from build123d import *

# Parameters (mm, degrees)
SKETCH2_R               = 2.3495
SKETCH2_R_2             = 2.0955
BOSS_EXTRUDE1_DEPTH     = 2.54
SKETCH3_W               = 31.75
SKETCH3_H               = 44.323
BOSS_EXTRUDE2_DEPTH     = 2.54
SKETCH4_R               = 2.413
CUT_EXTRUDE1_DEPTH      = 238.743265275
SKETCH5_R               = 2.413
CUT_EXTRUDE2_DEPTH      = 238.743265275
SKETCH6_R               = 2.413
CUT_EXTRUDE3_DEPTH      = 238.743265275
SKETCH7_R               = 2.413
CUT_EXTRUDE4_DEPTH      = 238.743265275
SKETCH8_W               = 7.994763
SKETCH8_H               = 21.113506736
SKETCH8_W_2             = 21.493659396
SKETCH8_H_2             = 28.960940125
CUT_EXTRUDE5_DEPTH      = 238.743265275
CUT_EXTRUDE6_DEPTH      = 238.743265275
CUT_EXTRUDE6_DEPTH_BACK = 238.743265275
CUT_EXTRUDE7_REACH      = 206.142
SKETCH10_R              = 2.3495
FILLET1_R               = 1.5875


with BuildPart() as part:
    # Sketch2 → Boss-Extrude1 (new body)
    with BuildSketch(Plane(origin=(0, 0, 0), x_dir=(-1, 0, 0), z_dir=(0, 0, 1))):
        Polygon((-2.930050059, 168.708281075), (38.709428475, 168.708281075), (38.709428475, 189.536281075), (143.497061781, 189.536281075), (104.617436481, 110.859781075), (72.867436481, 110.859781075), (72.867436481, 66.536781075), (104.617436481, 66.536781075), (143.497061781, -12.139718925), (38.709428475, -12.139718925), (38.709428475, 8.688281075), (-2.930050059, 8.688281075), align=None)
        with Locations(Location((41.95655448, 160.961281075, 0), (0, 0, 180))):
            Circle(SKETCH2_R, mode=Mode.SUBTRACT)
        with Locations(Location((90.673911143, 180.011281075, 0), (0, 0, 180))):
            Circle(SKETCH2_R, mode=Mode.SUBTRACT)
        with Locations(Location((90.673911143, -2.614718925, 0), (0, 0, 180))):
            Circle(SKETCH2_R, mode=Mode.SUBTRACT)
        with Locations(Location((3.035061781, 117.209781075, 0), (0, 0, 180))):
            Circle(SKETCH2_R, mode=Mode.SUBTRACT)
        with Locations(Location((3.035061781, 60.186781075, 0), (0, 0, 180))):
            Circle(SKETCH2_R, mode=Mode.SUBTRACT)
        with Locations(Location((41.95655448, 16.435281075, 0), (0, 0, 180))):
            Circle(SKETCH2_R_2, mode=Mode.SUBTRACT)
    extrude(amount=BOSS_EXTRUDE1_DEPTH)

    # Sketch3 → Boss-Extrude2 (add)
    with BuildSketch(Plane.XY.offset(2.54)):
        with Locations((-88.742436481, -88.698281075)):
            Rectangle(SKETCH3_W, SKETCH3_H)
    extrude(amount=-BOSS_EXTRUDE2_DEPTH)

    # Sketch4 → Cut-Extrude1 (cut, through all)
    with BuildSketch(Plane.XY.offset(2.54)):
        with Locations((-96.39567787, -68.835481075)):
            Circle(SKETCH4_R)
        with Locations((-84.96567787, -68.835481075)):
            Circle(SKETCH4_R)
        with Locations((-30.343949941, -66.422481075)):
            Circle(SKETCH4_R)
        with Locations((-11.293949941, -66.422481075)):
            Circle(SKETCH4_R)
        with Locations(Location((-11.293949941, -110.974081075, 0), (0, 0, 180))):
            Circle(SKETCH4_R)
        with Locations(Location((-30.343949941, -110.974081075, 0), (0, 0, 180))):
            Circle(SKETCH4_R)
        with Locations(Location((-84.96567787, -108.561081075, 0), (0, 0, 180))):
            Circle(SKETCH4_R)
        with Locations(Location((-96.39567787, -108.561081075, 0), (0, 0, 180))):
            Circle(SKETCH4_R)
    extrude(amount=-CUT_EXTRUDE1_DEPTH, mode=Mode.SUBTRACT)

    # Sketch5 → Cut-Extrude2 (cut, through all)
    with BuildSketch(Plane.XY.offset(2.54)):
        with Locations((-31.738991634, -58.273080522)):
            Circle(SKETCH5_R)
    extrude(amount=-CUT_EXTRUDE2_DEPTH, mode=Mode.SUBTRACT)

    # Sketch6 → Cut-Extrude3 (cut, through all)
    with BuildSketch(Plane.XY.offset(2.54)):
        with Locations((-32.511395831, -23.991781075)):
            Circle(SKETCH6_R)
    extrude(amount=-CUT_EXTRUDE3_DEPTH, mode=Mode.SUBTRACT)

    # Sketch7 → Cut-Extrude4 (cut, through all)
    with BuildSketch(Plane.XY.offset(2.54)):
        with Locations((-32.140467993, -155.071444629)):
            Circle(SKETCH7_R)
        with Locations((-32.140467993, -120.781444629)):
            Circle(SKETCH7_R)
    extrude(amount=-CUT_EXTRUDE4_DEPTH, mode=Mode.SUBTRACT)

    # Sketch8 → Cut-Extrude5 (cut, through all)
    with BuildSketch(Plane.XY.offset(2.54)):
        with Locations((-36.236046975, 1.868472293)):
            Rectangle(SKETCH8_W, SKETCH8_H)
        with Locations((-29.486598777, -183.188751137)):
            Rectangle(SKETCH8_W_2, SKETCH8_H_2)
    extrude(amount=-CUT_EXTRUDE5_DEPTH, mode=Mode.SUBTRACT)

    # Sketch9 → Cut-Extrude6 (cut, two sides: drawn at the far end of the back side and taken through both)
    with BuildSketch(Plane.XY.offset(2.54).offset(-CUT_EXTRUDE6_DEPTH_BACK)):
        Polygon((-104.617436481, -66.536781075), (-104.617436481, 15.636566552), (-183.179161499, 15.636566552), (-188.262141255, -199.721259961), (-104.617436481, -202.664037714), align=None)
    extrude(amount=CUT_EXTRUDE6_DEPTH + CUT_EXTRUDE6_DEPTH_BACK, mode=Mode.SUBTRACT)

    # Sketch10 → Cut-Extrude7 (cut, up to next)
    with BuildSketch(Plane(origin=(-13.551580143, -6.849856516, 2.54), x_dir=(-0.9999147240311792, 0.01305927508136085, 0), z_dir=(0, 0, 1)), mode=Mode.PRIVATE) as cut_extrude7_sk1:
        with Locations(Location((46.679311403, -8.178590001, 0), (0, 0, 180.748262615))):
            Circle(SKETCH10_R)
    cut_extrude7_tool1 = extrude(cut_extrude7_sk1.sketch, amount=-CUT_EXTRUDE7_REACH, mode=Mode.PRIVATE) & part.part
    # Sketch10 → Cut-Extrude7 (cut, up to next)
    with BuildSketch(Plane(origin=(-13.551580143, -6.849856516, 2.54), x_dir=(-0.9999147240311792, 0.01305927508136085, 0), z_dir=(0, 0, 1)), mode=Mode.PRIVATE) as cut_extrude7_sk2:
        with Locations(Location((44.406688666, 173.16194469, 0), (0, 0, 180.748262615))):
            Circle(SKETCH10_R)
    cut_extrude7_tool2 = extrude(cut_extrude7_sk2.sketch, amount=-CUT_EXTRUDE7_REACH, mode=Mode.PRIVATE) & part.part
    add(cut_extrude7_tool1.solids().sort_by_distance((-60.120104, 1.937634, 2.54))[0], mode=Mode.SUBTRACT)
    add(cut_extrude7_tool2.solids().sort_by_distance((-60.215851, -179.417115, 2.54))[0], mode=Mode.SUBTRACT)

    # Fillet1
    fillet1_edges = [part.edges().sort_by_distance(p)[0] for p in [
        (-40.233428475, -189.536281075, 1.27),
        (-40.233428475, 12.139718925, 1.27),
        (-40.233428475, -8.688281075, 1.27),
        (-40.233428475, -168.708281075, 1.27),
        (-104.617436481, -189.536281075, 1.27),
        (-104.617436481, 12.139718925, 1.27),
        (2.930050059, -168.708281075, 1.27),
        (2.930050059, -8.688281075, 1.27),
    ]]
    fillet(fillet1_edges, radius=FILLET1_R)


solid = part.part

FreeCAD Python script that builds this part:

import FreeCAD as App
import Part
import Sketcher
Q = App.Units.Quantity


def edges_at(feature, points):
    """Names of the edges that pass closest to the given points."""
    edges = feature.Shape.Edges
    near = lambda p: min(range(len(edges)), key=lambda i: edges[i].distToShape(Part.Vertex(*p))[0])
    return sorted({f"Edge{near(p) + 1}" for p in points})


def add_polygon(sketch, points):
    """Adds a closed chain of lines whose ends are joined by coincident constraints."""
    first, n = sketch.GeometryCount, len(points)
    for a, b in zip(points, points[1:] + points[:1]):
        sketch.addGeometry(Part.LineSegment(App.Vector(*a, 0), App.Vector(*b, 0)), False)
    for i in range(n):
        sketch.addConstraint(Sketcher.Constraint("Coincident", first + i, 2, first + (i + 1) % n, 1))

doc = App.newDocument("Part")
body = doc.addObject("PartDesign::Body", "Body")

sketch1 = body.newObject("Sketcher::SketchObject", "Sketch")
sketch1.AttachmentSupport = (doc.getObject("XY_Plane"), [""])
sketch1.MapMode = "FlatFace"
add_polygon(sketch1, [(-38.7, -168.7), (2.9, -168.7), (2.9, -8.7), (-38.7, -8.7), (-38.7, 12.1), (-143.5, 12.1), (-104.6, -66.5), (-72.9, -66.5), (-72.9, -110.9), (-104.6, -110.9), (-143.5, -189.5), (-38.7, -189.5)])
sketch1.addGeometry(Part.Circle(App.Vector(-90.7, 2.6, 0), App.Vector(0, 0, 1), 2.3), False)
sketch1.addGeometry(Part.Circle(App.Vector(-42, -16.4, 0), App.Vector(0, 0, 1), 2.1), False)
sketch1.addGeometry(Part.Circle(App.Vector(-3, -60.2, 0), App.Vector(0, 0, 1), 2.3), False)
sketch1.addGeometry(Part.Circle(App.Vector(-90.7, -180, 0), App.Vector(0, 0, 1), 2.3), False)
sketch1.addGeometry(Part.Circle(App.Vector(-3, -117.2, 0), App.Vector(0, 0, 1), 2.3), False)
sketch1.addGeometry(Part.Circle(App.Vector(-42, -161, 0), App.Vector(0, 0, 1), 2.3), False)
sketch1.addConstraint([
    Sketcher.Constraint("Horizontal", 0),
    Sketcher.Constraint("Vertical", 1),
    Sketcher.Constraint("Horizontal", 2),
    Sketcher.Constraint("Vertical", 3),
    Sketcher.Constraint("Horizontal", 4),
    Sketcher.Constraint("Horizontal", 6),
    Sketcher.Constraint("Vertical", 7),
    Sketcher.Constraint("Horizontal", 8),
    Sketcher.Constraint("Horizontal", 10),
    Sketcher.Constraint("Vertical", 11),
    Sketcher.Constraint("Equal", 12, 14),
    Sketcher.Constraint("Equal", 14, 15),
    Sketcher.Constraint("Equal", 15, 16),
    Sketcher.Constraint("Equal", 16, 17),
    Sketcher.Constraint("Vertical", 12, 3, 15, 3),
    Sketcher.Constraint("Vertical", 14, 3, 16, 3),
    Sketcher.Constraint("Vertical", 13, 3, 17, 3),
    Sketcher.Constraint("Vertical", 5, 2, 8, 2),
    Sketcher.Constraint("Vertical", 4, 2, 9, 2),
    Sketcher.Constraint("Vertical", 3, 2, 10, 2),
    Sketcher.Constraint("Equal", 3, 11),
    Sketcher.Constraint("Equal", 5, 9),
    Sketcher.Constraint("Diameter", 12, Q("0.185 in")),
    Sketcher.Constraint("Diameter", 13, Q("0.165 in")),
    Sketcher.Constraint("DistanceY", 1, 1, 1, 2, Q("6.3 in")),
    Sketcher.Constraint("DistanceX", 6, 1, 6, 2, Q("1.25 in")),
    Sketcher.Constraint("DistanceY", 3, 1, 3, 2, Q("0.82 in")),
    Sketcher.Constraint("DistanceY", 7, 2, 7, 1, Q("1.745 in")),
    Sketcher.Constraint("DistanceY", 13, 3, 12, 3, Q("0.75 in")),
    Sketcher.Constraint("DistanceY", 15, 3, 13, 3, Q("6.44 in")),
    Sketcher.Constraint("DistanceY", 15, 3, 17, 3, Q("0.75 in")),
    Sketcher.Constraint("DistanceY", 5, 2, 14, 3, Q("0.25 in")),
    Sketcher.Constraint("DistanceY", 16, 3, 7, 2, Q("0.25 in")),
    Sketcher.Constraint("DistanceY", 0, 2, 17, 3, Q("0.305 in")),
    Sketcher.Constraint("DistanceX", 0, 1, 0, 2, 41.639479),
    Sketcher.Constraint("DistanceX", 4, 2, 4, 1, 104.787633),
    Sketcher.Constraint("DistanceX", 12, 3, -1, 1, 90.673911),
    Sketcher.Constraint("DistanceY", -1, 1, 12, 3, 2.614719),
    Sketcher.Constraint("DistanceX", 14, 3, -1, 1, 3.035062),
    Sketcher.Constraint("DistanceX", -1, 1, 0, 2, 2.93005),
    Sketcher.Constraint("DistanceX", 5, 2, 2, 2, 65.908008),
    Sketcher.Constraint("DistanceX", 13, 3, -1, 1, 41.956554),
])
pad1 = body.newObject("PartDesign::Pad", "Pad")
pad1.Profile = sketch1
pad1.Length = Q("0.1 in")

sketch2 = body.newObject("Sketcher::SketchObject", "Sketch001")
sketch2.AttachmentSupport = (doc.getObject("XY_Plane"), [""])
sketch2.MapMode = "FlatFace"
sketch2.AttachmentOffset = App.Placement(App.Vector(0, 0, 0.1 * 25.4), App.Rotation())
add_polygon(sketch2, [(-105, -67), (-105, -111), (-73, -111), (-73, -67)])
sketch2.addConstraint([
    Sketcher.Constraint("Vertical", 0),
    Sketcher.Constraint("Horizontal", 1),
    Sketcher.Constraint("Vertical", 2),
    Sketcher.Constraint("Horizontal", 3),
    Sketcher.Constraint("DistanceX", 1, 1, 1, 2, Q("1.25 in")),
    Sketcher.Constraint("DistanceY", 0, 2, 0, 1, Q("1.745 in")),
    Sketcher.Constraint("DistanceY", 0, 2, -1, 1, 110.859781),
    Sketcher.Constraint("DistanceX", 0, 2, -1, 1, 104.617436),
])
pad2 = body.newObject("PartDesign::Pad", "Pad001")
pad2.Profile = sketch2
pad2.Length = Q("0.1 in")
pad2.Reversed = True

sketch3 = body.newObject("Sketcher::SketchObject", "Sketch002")
sketch3.AttachmentSupport = (doc.getObject("XY_Plane"), [""])
sketch3.MapMode = "FlatFace"
sketch3.AttachmentOffset = App.Placement(App.Vector(0, 0, 0.1 * 25.4), App.Rotation())
sketch3.addGeometry([
    Part.Circle(App.Vector(-96.4, -68.8, 0), App.Vector(0, 0, 1), 2.4),
    Part.Circle(App.Vector(-85, -68.8, 0), App.Vector(0, 0, 1), 2.4),
    Part.Circle(App.Vector(-30.3, -66.4, 0), App.Vector(0, 0, 1), 2.4),
    Part.Circle(App.Vector(-11.3, -66.4, 0), App.Vector(0, 0, 1), 2.4),
    Part.Circle(App.Vector(-11.3, -111, 0), App.Vector(0, 0, 1), 2.4),
    Part.Circle(App.Vector(-30.3, -111, 0), App.Vector(0, 0, 1), 2.4),
    Part.Circle(App.Vector(-85, -108.6, 0), App.Vector(0, 0, 1), 2.4),
    Part.Circle(App.Vector(-96.4, -108.6, 0), App.Vector(0, 0, 1), 2.4),
], False)
sketch3.addConstraint([
    Sketcher.Constraint("Equal", 0, 1),
    Sketcher.Constraint("Equal", 1, 2),
    Sketcher.Constraint("Equal", 2, 3),
    Sketcher.Constraint("Equal", 3, 4),
    Sketcher.Constraint("Equal", 4, 5),
    Sketcher.Constraint("Equal", 5, 6),
    Sketcher.Constraint("Equal", 6, 7),
    Sketcher.Constraint("Horizontal", 0, 3, 1, 3),
    Sketcher.Constraint("Horizontal", 2, 3, 3, 3),
    Sketcher.Constraint("Horizontal", 4, 3, 5, 3),
    Sketcher.Constraint("Horizontal", 6, 3, 7, 3),
    Sketcher.Constraint("Vertical", 3, 3, 4, 3),
    Sketcher.Constraint("Vertical", 2, 3, 5, 3),
    Sketcher.Constraint("Vertical", 1, 3, 6, 3),
    Sketcher.Constraint("Vertical", 0, 3, 7, 3),
    Sketcher.Constraint("Diameter", 0, Q("0.19 in")),
    Sketcher.Constraint("DistanceX", 0, 3, 1, 3, Q("0.45 in")),
    Sketcher.Constraint("DistanceX", 2, 3, 3, 3, Q("0.75 in")),
    Sketcher.Constraint("DistanceY", 1, 3, 2, 3, Q("0.095 in")),
    Sketcher.Constraint("DistanceY", 4, 3, 3, 3, Q("1.754 in")),
    Sketcher.Constraint("DistanceY", 6, 3, 1, 3, Q("1.564 in")),
    Sketcher.Constraint("DistanceY", 0, 3, -1, 1, 68.835481),
    Sketcher.Constraint("DistanceX", 2, 3, -1, 1, 30.34395),
    Sketcher.Constraint("DistanceX", 0, 3, -1, 1, 96.395678),
])
pocket1 = body.newObject("PartDesign::Pocket", "Pocket")
pocket1.Profile = sketch3
pocket1.Type = "ThroughAll"

sketch4 = body.newObject("Sketcher::SketchObject", "Sketch003")
sketch4.AttachmentSupport = (doc.getObject("XY_Plane"), [""])
sketch4.MapMode = "FlatFace"
sketch4.AttachmentOffset = App.Placement(App.Vector(0, 0, 0.1 * 25.4), App.Rotation())
sketch4.addGeometry(Part.Circle(App.Vector(-31.7, -58.3, 0), App.Vector(0, 0, 1), 2.4), False)
sketch4.addConstraint([
    Sketcher.Constraint("Diameter", 0, Q("0.19 in")),
    Sketcher.Constraint("DistanceX", 0, 3, -1, 1, 31.738992),
    Sketcher.Constraint("DistanceY", 0, 3, -1, 1, 58.273081),
])
pocket2 = body.newObject("PartDesign::Pocket", "Pocket001")
pocket2.Profile = sketch4
pocket2.Type = "ThroughAll"

sketch5 = body.newObject("Sketcher::SketchObject", "Sketch004")
sketch5.AttachmentSupport = (doc.getObject("XY_Plane"), [""])
sketch5.MapMode = "FlatFace"
sketch5.AttachmentOffset = App.Placement(App.Vector(0, 0, 0.1 * 25.4), App.Rotation())
sketch5.addGeometry(Part.Circle(App.Vector(-32.5, -24, 0), App.Vector(0, 0, 1), 2.4), False)
sketch5.addConstraint([
    Sketcher.Constraint("Diameter", 0, Q("0.19 in")),
    Sketcher.Constraint("DistanceY", 0, 3, -1, 1, 23.991781),
    Sketcher.Constraint("DistanceX", 0, 3, -1, 1, 32.511396),
])
pocket3 = body.newObject("PartDesign::Pocket", "Pocket002")
pocket3.Profile = sketch5
pocket3.Type = "ThroughAll"

sketch6 = body.newObject("Sketcher::SketchObject", "Sketch005")
sketch6.AttachmentSupport = (doc.getObject("XY_Plane"), [""])
sketch6.MapMode = "FlatFace"
sketch6.AttachmentOffset = App.Placement(App.Vector(0, 0, 0.1 * 25.4), App.Rotation())
sketch6.addGeometry([
    Part.Circle(App.Vector(-32.1, -155.1, 0), App.Vector(0, 0, 1), 2.4),
    Part.Circle(App.Vector(-32.1, -120.8, 0), App.Vector(0, 0, 1), 2.4),
], False)
sketch6.addConstraint([
    Sketcher.Constraint("Equal", 0, 1),
    Sketcher.Constraint("Vertical", 0, 3, 1, 3),
    Sketcher.Constraint("Diameter", 0, Q("0.19 in")),
    Sketcher.Constraint("DistanceY", 0, 3, 1, 3, Q("1.35 in")),
    Sketcher.Constraint("DistanceX", 0, 3, -1, 1, 32.140468),
    Sketcher.Constraint("DistanceY", 0, 3, -1, 1, 155.071445),
])
pocket4 = body.newObject("PartDesign::Pocket", "Pocket003")
pocket4.Profile = sketch6
pocket4.Type = "ThroughAll"

sketch7 = body.newObject("Sketcher::SketchObject", "Sketch006")
sketch7.AttachmentSupport = (doc.getObject("XY_Plane"), [""])
sketch7.MapMode = "FlatFace"
sketch7.AttachmentOffset = App.Placement(App.Vector(0, 0, 0.1 * 25.4), App.Rotation())
add_polygon(sketch7, [(-40, 12), (-40, -9), (-32, -9), (-32, 12)])
add_polygon(sketch7, [(-40, -169), (-40, -198), (-19, -198), (-19, -169)])
sketch7.addConstraint([
    Sketcher.Constraint("Vertical", 0),
    Sketcher.Constraint("Horizontal", 1),
    Sketcher.Constraint("Vertical", 2),
    Sketcher.Constraint("Horizontal", 3),
    Sketcher.Constraint("Vertical", 4),
    Sketcher.Constraint("Horizontal", 5),
    Sketcher.Constraint("Vertical", 6),
    Sketcher.Constraint("Horizontal", 7),
    Sketcher.Constraint("Vertical", 3, 2, 4, 2),
    Sketcher.Constraint("DistanceY", 6, 2, 1, 2, Q("6.3 in")),
    Sketcher.Constraint("DistanceX", 5, 1, 5, 2, 21.493659),
    Sketcher.Constraint("DistanceY", 4, 2, 4, 1, 28.96094),
    Sketcher.Constraint("DistanceX", 1, 1, 1, 2, 7.994763),
    Sketcher.Constraint("DistanceY", 0, 2, 0, 1, 21.113507),
    Sketcher.Constraint("DistanceX", 0, 2, -1, 1, 40.233428),
    Sketcher.Constraint("DistanceY", 0, 2, -1, 1, 8.688281),
])
pocket5 = body.newObject("PartDesign::Pocket", "Pocket004")
pocket5.Profile = sketch7
pocket5.Type = "ThroughAll"

sketch8 = body.newObject("Sketcher::SketchObject", "Sketch007")
sketch8.AttachmentSupport = (doc.getObject("XY_Plane"), [""])
sketch8.MapMode = "FlatFace"
sketch8.AttachmentOffset = App.Placement(App.Vector(0, 0, 0.1 * 25.4), App.Rotation())
add_polygon(sketch8, [(-105, 16), (-183, 16), (-188, -200), (-105, -203)])
sketch8.addConstraint([
    Sketcher.Constraint("Horizontal", 0),
    Sketcher.Constraint("Vertical", 3),
    Sketcher.Constraint("DistanceX", 0, 2, 0, 1, 78.561725),
    Sketcher.Constraint("DistanceY", 3, 1, 3, 2, 218.300604),
    Sketcher.Constraint("DistanceX", 0, 2, -1, 1, 183.179161),
    Sketcher.Constraint("DistanceX", 1, 2, -1, 1, 188.262141),
    Sketcher.Constraint("DistanceY", 1, 2, -1, 1, 199.72126),
    Sketcher.Constraint("Distance", 1, 215.417804),
])
pocket6 = body.newObject("PartDesign::Pocket", "Pocket005")
pocket6.Profile = sketch8
pocket6.Type = "ThroughAll"
pocket6.Midplane = True

sketch9 = body.newObject("Sketcher::SketchObject", "Sketch008")
sketch9.AttachmentSupport = (doc.getObject("XY_Plane"), [""])
sketch9.MapMode = "FlatFace"
sketch9.AttachmentOffset = App.Placement(App.Vector(0, 0, 0.1 * 25.4), App.Rotation())
sketch9.addGeometry(Part.Circle(App.Vector(-60.1, 1.9, 0), App.Vector(0, 0, 1), 2.3), False)
sketch9.addConstraint([
    Sketcher.Constraint("Diameter", 0, Q("0.185 in")),
    Sketcher.Constraint("DistanceX", 0, 3, -1, 1, 60.120104),
    Sketcher.Constraint("DistanceY", -1, 1, 0, 3, 1.937634),
])
pocket7 = body.newObject("PartDesign::Pocket", "Pocket006")
pocket7.Profile = sketch9
pocket7.Type = "UpToFirst"

sketch10 = body.newObject("Sketcher::SketchObject", "Sketch009")
sketch10.AttachmentSupport = (doc.getObject("XY_Plane"), [""])
sketch10.MapMode = "FlatFace"
sketch10.AttachmentOffset = App.Placement(App.Vector(0, 0, 0.1 * 25.4), App.Rotation())
sketch10.addGeometry(Part.Circle(App.Vector(-60.2, -179.4, 0), App.Vector(0, 0, 1), 2.3), False)
sketch10.addConstraint([
    Sketcher.Constraint("Diameter", 0, Q("0.185 in")),
    Sketcher.Constraint("DistanceX", 0, 3, -1, 1, 60.215851),
    Sketcher.Constraint("DistanceY", 0, 3, -1, 1, 179.417115),
])
pocket8 = body.newObject("PartDesign::Pocket", "Pocket007")
pocket8.Profile = sketch10
pocket8.Type = "UpToFirst"
doc.recompute()

fillet = body.newObject("PartDesign::Fillet", "Fillet")
fillet.Base = (pocket8, edges_at(pocket8, [
    (-40.233, -189.536, 1.27),
    (-40.233, 12.14, 1.27),
    (-40.233, -8.688, 1.27),
    (-40.233, -168.708, 1.27),
    (-104.617, -189.536, 1.27),
    (-104.617, 12.14, 1.27),
    (2.93, -168.708, 1.27),
    (2.93, -8.688, 1.27),
]))
fillet.Radius = Q("0.0625 in")

doc.recompute()
